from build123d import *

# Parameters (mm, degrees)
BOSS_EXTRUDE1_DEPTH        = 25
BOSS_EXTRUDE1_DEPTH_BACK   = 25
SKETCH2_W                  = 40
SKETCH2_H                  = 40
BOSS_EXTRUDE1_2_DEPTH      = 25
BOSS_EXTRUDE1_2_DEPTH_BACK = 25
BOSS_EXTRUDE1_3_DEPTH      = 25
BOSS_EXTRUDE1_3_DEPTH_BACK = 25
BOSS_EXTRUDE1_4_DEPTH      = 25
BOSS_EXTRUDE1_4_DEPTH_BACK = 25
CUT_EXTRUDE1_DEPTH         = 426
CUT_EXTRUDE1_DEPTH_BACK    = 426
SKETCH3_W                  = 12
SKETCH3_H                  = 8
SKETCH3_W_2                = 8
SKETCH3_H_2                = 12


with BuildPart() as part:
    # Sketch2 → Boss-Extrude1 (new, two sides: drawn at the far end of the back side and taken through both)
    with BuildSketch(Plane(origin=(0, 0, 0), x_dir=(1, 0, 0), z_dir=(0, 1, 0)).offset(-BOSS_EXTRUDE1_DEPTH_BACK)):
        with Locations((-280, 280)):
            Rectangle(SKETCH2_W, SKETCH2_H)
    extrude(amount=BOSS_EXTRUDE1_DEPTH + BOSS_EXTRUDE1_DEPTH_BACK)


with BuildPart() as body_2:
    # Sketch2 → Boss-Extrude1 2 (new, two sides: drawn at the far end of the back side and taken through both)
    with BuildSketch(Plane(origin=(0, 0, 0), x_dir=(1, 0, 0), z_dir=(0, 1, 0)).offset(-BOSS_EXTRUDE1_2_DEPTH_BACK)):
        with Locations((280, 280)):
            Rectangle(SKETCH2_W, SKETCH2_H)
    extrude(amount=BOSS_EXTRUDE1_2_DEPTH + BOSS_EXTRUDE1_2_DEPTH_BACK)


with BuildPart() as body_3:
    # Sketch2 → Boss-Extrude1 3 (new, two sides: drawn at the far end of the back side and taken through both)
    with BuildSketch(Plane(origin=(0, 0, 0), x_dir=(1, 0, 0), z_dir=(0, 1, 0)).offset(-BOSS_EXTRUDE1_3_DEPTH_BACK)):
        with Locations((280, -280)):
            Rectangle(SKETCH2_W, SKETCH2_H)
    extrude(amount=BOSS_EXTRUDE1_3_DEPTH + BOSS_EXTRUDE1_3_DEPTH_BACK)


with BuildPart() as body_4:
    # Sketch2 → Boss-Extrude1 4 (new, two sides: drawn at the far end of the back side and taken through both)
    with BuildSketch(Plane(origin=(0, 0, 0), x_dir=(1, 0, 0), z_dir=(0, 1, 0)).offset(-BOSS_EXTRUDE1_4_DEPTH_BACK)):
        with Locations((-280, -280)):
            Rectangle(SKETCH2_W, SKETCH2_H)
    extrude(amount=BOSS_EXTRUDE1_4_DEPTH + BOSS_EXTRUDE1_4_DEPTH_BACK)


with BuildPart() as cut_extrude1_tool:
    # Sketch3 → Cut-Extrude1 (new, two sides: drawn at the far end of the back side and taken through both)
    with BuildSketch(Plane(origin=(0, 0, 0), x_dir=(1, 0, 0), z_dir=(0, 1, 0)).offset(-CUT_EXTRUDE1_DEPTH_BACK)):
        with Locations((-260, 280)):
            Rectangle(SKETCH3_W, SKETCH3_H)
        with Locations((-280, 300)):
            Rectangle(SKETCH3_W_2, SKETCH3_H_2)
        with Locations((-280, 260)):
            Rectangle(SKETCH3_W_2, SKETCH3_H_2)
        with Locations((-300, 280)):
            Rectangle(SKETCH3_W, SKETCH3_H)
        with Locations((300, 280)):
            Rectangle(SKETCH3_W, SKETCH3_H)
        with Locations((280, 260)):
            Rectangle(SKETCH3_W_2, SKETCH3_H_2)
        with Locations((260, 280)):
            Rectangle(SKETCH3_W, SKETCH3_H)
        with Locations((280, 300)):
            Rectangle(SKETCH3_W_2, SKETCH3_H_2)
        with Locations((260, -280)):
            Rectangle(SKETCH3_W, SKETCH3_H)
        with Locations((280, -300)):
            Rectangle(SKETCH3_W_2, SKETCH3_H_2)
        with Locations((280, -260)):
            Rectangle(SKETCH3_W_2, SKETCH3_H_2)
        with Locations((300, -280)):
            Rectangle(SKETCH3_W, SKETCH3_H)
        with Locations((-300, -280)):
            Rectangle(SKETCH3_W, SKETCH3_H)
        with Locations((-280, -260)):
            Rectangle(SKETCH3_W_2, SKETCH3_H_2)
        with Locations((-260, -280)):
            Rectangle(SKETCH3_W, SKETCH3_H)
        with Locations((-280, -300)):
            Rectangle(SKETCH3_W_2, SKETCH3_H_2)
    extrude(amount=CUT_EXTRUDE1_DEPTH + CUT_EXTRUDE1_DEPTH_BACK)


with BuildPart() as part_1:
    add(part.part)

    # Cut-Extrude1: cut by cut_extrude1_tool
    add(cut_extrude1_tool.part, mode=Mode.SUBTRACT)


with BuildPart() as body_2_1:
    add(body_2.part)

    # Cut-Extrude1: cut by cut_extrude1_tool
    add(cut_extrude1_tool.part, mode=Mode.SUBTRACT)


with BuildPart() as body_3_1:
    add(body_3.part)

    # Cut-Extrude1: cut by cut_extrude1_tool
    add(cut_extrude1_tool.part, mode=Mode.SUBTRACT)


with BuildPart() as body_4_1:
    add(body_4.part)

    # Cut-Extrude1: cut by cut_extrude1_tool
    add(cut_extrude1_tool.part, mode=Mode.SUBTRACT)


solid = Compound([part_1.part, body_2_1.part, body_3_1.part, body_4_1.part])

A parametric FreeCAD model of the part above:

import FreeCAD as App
import Part
import Sketcher

V = App.Vector

doc = App.newDocument("Part")
body = doc.addObject("PartDesign::Body", "Body")

sketch1 = body.newObject("Sketcher::SketchObject", "Sketch")
sketch1.AttachmentSupport = (doc.getObject("XZ_Plane"), [""])
sketch1.MapMode = "FlatFace"
sketch1.addGeometry([
    Part.LineSegment(V(-300, -300, 0), V(-300, -260, 0)),
    Part.LineSegment(V(-300, -260, 0), V(-260, -260, 0)),
    Part.LineSegment(V(-260, -260, 0), V(-260, -300, 0)),
    Part.LineSegment(V(-260, -300, 0), V(-300, -300, 0)),
], False)
sketch1.addConstraint([
    Sketcher.Constraint("Coincident", 0, 2, 1, 1),
    Sketcher.Constraint("Coincident", 1, 2, 2, 1),
    Sketcher.Constraint("Coincident", 2, 2, 3, 1),
    Sketcher.Constraint("Coincident", 3, 2, 0, 1),
    Sketcher.Constraint("Vertical", 0),
    Sketcher.Constraint("Horizontal", 1),
    Sketcher.Constraint("Vertical", 2),
    Sketcher.Constraint("Horizontal", 3),
    Sketcher.Constraint("Equal", 3, 0),
    Sketcher.Constraint("DistanceX", 1, 1, 1, 2, 40.0),
    Sketcher.Constraint("DistanceX", 0, 2, -1, 1, 300.0),
    Sketcher.Constraint("DistanceY", 0, 2, -1, 1, 260.0),
])
pad1 = body.newObject("PartDesign::Pad", "Pad")
pad1.Profile = sketch1
pad1.Type = "TwoLengths"
pad1.Length = 25
pad1.Length2 = 25
pad1.Reversed = True
body2 = doc.addObject("PartDesign::Body", "Body001")

sketch2 = body2.newObject("Sketcher::SketchObject", "Sketch001")
sketch2.AttachmentSupport = (doc.getObject("XZ_Plane001"), [""])
sketch2.MapMode = "FlatFace"
sketch2.addGeometry([
    Part.LineSegment(V(260, -300, 0), V(260, -260, 0)),
    Part.LineSegment(V(260, -260, 0), V(300, -260, 0)),
    Part.LineSegment(V(300, -260, 0), V(300, -300, 0)),
    Part.LineSegment(V(300, -300, 0), V(260, -300, 0)),
], False)
sketch2.addConstraint([
    Sketcher.Constraint("Coincident", 0, 2, 1, 1),
    Sketcher.Constraint("Coincident", 1, 2, 2, 1),
    Sketcher.Constraint("Coincident", 2, 2, 3, 1),
    Sketcher.Constraint("Coincident", 3, 2, 0, 1),
    Sketcher.Constraint("Vertical", 0),
    Sketcher.Constraint("Horizontal", 1),
    Sketcher.Constraint("Vertical", 2),
    Sketcher.Constraint("Horizontal", 3),
    Sketcher.Constraint("Equal", 3, 0),
    Sketcher.Constraint("DistanceX", 1, 1, 1, 2, 40.0),
    Sketcher.Constraint("DistanceX", -1, 1, 0, 2, 260.0),
    Sketcher.Constraint("DistanceY", 0, 2, -1, 1, 260.0),
])
pad2 = body2.newObject("PartDesign::Pad", "Pad001")
pad2.Profile = sketch2
pad2.Type = "TwoLengths"
pad2.Length = 25
pad2.Length2 = 25
pad2.Reversed = True
body3 = doc.addObject("PartDesign::Body", "Body002")

sketch3 = body3.newObject("Sketcher::SketchObject", "Sketch002")
sketch3.AttachmentSupport = (doc.getObject("XZ_Plane002"), [""])
sketch3.MapMode = "FlatFace"
sketch3.addGeometry([
    Part.LineSegment(V(260, 260, 0), V(260, 300, 0)),
    Part.LineSegment(V(260, 300, 0), V(300, 300, 0)),
    Part.LineSegment(V(300, 300, 0), V(300, 260, 0)),
    Part.LineSegment(V(300, 260, 0), V(260, 260, 0)),
], False)
sketch3.addConstraint([
    Sketcher.Constraint("Coincident", 0, 2, 1, 1),
    Sketcher.Constraint("Coincident", 1, 2, 2, 1),
    Sketcher.Constraint("Coincident", 2, 2, 3, 1),
    Sketcher.Constraint("Coincident", 3, 2, 0, 1),
    Sketcher.Constraint("Vertical", 0),
    Sketcher.Constraint("Horizontal", 1),
    Sketcher.Constraint("Vertical", 2),
    Sketcher.Constraint("Horizontal", 3),
    Sketcher.Constraint("Equal", 3, 0),
    Sketcher.Constraint("DistanceX", 1, 1, 1, 2, 40.0),
    Sketcher.Constraint("DistanceX", -1, 1, 0, 2, 260.0),
    Sketcher.Constraint("DistanceY", -1, 1, 0, 2, 300.0),
])
pad3 = body3.newObject("PartDesign::Pad", "Pad002")
pad3.Profile = sketch3
pad3.Type = "TwoLengths"
pad3.Length = 25
pad3.Length2 = 25
pad3.Reversed = True
body4 = doc.addObject("PartDesign::Body", "Body003")

sketch4 = body4.newObject("Sketcher::SketchObject", "Sketch003")
sketch4.AttachmentSupport = (doc.getObject("XZ_Plane003"), [""])
sketch4.MapMode = "FlatFace"
sketch4.addGeometry([
    Part.LineSegment(V(-300, 260, 0), V(-300, 300, 0)),
    Part.LineSegment(V(-300, 300, 0), V(-260, 300, 0)),
    Part.LineSegment(V(-260, 300, 0), V(-260, 260, 0)),
    Part.LineSegment(V(-260, 260, 0), V(-300, 260, 0)),
], False)
sketch4.addConstraint([
    Sketcher.Constraint("Coincident", 0, 2, 1, 1),
    Sketcher.Constraint("Coincident", 1, 2, 2, 1),
    Sketcher.Constraint("Coincident", 2, 2, 3, 1),
    Sketcher.Constraint("Coincident", 3, 2, 0, 1),
    Sketcher.Constraint("Vertical", 0),
    Sketcher.Constraint("Horizontal", 1),
    Sketcher.Constraint("Vertical", 2),
    Sketcher.Constraint("Horizontal", 3),
    Sketcher.Constraint("Equal", 3, 0),
    Sketcher.Constraint("DistanceX", 1, 1, 1, 2, 40.0),
    Sketcher.Constraint("DistanceX", 0, 2, -1, 1, 300.0),
    Sketcher.Constraint("DistanceY", -1, 1, 0, 2, 300.0),
])
pad4 = body4.newObject("PartDesign::Pad", "Pad003")
pad4.Profile = sketch4
pad4.Type = "TwoLengths"
pad4.Length = 25
pad4.Length2 = 25
pad4.Reversed = True
body5 = doc.addObject("PartDesign::Body", "Body004")
body5.AllowCompound = True

sketch5 = body5.newObject("Sketcher::SketchObject", "Sketch004")
sketch5.AttachmentSupport = (doc.getObject("XZ_Plane004"), [""])
sketch5.MapMode = "FlatFace"
sketch5.addGeometry([
    Part.LineSegment(V(-266, -284, 0), V(-266, -276, 0)),
    Part.LineSegment(V(-266, -276, 0), V(-254, -276, 0)),
    Part.LineSegment(V(-254, -276, 0), V(-254, -284, 0)),
    Part.LineSegment(V(-254, -284, 0), V(-266, -284, 0)),
    Part.LineSegment(V(-284, -306, 0), V(-284, -294, 0)),
    Part.LineSegment(V(-284, -294, 0), V(-276, -294, 0)),
    Part.LineSegment(V(-276, -294, 0), V(-276, -306, 0)),
    Part.LineSegment(V(-276, -306, 0), V(-284, -306, 0)),
    Part.LineSegment(V(-284, -266, 0), V(-284, -254, 0)),
    Part.LineSegment(V(-284, -254, 0), V(-276, -254, 0)),
    Part.LineSegment(V(-276, -254, 0), V(-276, -266, 0)),
    Part.LineSegment(V(-276, -266, 0), V(-284, -266, 0)),
    Part.LineSegment(V(-306, -284, 0), V(-306, -276, 0)),
    Part.LineSegment(V(-306, -276, 0), V(-294, -276, 0)),
    Part.LineSegment(V(-294, -276, 0), V(-294, -284, 0)),
    Part.LineSegment(V(-294, -284, 0), V(-306, -284, 0)),
    Part.LineSegment(V(294, -284, 0), V(294, -276, 0)),
    Part.LineSegment(V(294, -276, 0), V(306, -276, 0)),
    Part.LineSegment(V(306, -276, 0), V(306, -284, 0)),
    Part.LineSegment(V(306, -284, 0), V(294, -284, 0)),
    Part.LineSegment(V(276, -266, 0), V(276, -254, 0)),
    Part.LineSegment(V(276, -254, 0), V(284, -254, 0)),
    Part.LineSegment(V(284, -254, 0), V(284, -266, 0)),
    Part.LineSegment(V(284, -266, 0), V(276, -266, 0)),
    Part.LineSegment(V(254, -284, 0), V(254, -276, 0)),
    Part.LineSegment(V(254, -276, 0), V(266, -276, 0)),
    Part.LineSegment(V(266, -276, 0), V(266, -284, 0)),
    Part.LineSegment(V(266, -284, 0), V(254, -284, 0)),
    Part.LineSegment(V(276, -306, 0), V(276, -294, 0)),
    Part.LineSegment(V(276, -294, 0), V(284, -294, 0)),
    Part.LineSegment(V(284, -294, 0), V(284, -306, 0)),
    Part.LineSegment(V(284, -306, 0), V(276, -306, 0)),
    Part.LineSegment(V(254, 276, 0), V(254, 284, 0)),
    Part.LineSegment(V(254, 284, 0), V(266, 284, 0)),
    Part.LineSegment(V(266, 284, 0), V(266, 276, 0)),
    Part.LineSegment(V(266, 276, 0), V(254, 276, 0)),
    Part.LineSegment(V(276, 294, 0), V(276, 306, 0)),
    Part.LineSegment(V(276, 306, 0), V(284, 306, 0)),
    Part.LineSegment(V(284, 306, 0), V(284, 294, 0)),
    Part.LineSegment(V(284, 294, 0), V(276, 294, 0)),
    Part.LineSegment(V(276, 254, 0), V(276, 266, 0)),
    Part.LineSegment(V(276, 266, 0), V(284, 266, 0)),
    Part.LineSegment(V(284, 266, 0), V(284, 254, 0)),
    Part.LineSegment(V(284, 254, 0), V(276, 254, 0)),
    Part.LineSegment(V(294, 276, 0), V(294, 284, 0)),
    Part.LineSegment(V(294, 284, 0), V(306, 284, 0)),
    Part.LineSegment(V(306, 284, 0), V(306, 276, 0)),
    Part.LineSegment(V(306, 276, 0), V(294, 276, 0)),
    Part.LineSegment(V(-306, 276, 0), V(-306, 284, 0)),
    Part.LineSegment(V(-306, 284, 0), V(-294, 284, 0)),
    Part.LineSegment(V(-294, 284, 0), V(-294, 276, 0)),
    Part.LineSegment(V(-294, 276, 0), V(-306, 276, 0)),
    Part.LineSegment(V(-284, 254, 0), V(-284, 266, 0)),
    Part.LineSegment(V(-284, 266, 0), V(-276, 266, 0)),
    Part.LineSegment(V(-276, 266, 0), V(-276, 254, 0)),
    Part.LineSegment(V(-276, 254, 0), V(-284, 254, 0)),
    Part.LineSegment(V(-266, 276, 0), V(-266, 284, 0)),
    Part.LineSegment(V(-266, 284, 0), V(-254, 284, 0)),
    Part.LineSegment(V(-254, 284, 0), V(-254, 276, 0)),
    Part.LineSegment(V(-254, 276, 0), V(-266, 276, 0)),
    Part.LineSegment(V(-284, 294, 0), V(-284, 306, 0)),
    Part.LineSegment(V(-284, 306, 0), V(-276, 306, 0)),
    Part.LineSegment(V(-276, 306, 0), V(-276, 294, 0)),
    Part.LineSegment(V(-276, 294, 0), V(-284, 294, 0)),
], False)
sketch5.addConstraint([
    Sketcher.Constraint("Coincident", 0, 2, 1, 1),
    Sketcher.Constraint("Coincident", 1, 2, 2, 1),
    Sketcher.Constraint("Coincident", 2, 2, 3, 1),
    Sketcher.Constraint("Coincident", 3, 2, 0, 1),
    Sketcher.Constraint("Coincident", 4, 2, 5, 1),
    Sketcher.Constraint("Coincident", 5, 2, 6, 1),
    Sketcher.Constraint("Coincident", 6, 2, 7, 1),
    Sketcher.Constraint("Coincident", 7, 2, 4, 1),
    Sketcher.Constraint("Coincident", 8, 2, 9, 1),
    Sketcher.Constraint("Coincident", 9, 2, 10, 1),
    Sketcher.Constraint("Coincident", 10, 2, 11, 1),
    Sketcher.Constraint("Coincident", 11, 2, 8, 1),
    Sketcher.Constraint("Coincident", 12, 2, 13, 1),
    Sketcher.Constraint("Coincident", 13, 2, 14, 1),
    Sketcher.Constraint("Coincident", 14, 2, 15, 1),
    Sketcher.Constraint("Coincident", 15, 2, 12, 1),
    Sketcher.Constraint("Coincident", 16, 2, 17, 1),
    Sketcher.Constraint("Coincident", 17, 2, 18, 1),
    Sketcher.Constraint("Coincident", 18, 2, 19, 1),
    Sketcher.Constraint("Coincident", 19, 2, 16, 1),
    Sketcher.Constraint("Coincident", 20, 2, 21, 1),
    Sketcher.Constraint("Coincident", 21, 2, 22, 1),
    Sketcher.Constraint("Coincident", 22, 2, 23, 1),
    Sketcher.Constraint("Coincident", 23, 2, 20, 1),
    Sketcher.Constraint("Coincident", 24, 2, 25, 1),
    Sketcher.Constraint("Coincident", 25, 2, 26, 1),
    Sketcher.Constraint("Coincident", 26, 2, 27, 1),
    Sketcher.Constraint("Coincident", 27, 2, 24, 1),
    Sketcher.Constraint("Coincident", 28, 2, 29, 1),
    Sketcher.Constraint("Coincident", 29, 2, 30, 1),
    Sketcher.Constraint("Coincident", 30, 2, 31, 1),
    Sketcher.Constraint("Coincident", 31, 2, 28, 1),
    Sketcher.Constraint("Coincident", 32, 2, 33, 1),
    Sketcher.Constraint("Coincident", 33, 2, 34, 1),
    Sketcher.Constraint("Coincident", 34, 2, 35, 1),
    Sketcher.Constraint("Coincident", 35, 2, 32, 1),
    Sketcher.Constraint("Coincident", 36, 2, 37, 1),
    Sketcher.Constraint("Coincident", 37, 2, 38, 1),
    Sketcher.Constraint("Coincident", 38, 2, 39, 1),
    Sketcher.Constraint("Coincident", 39, 2, 36, 1),
    Sketcher.Constraint("Coincident", 40, 2, 41, 1),
    Sketcher.Constraint("Coincident", 41, 2, 42, 1),
    Sketcher.Constraint("Coincident", 42, 2, 43, 1),
    Sketcher.Constraint("Coincident", 43, 2, 40, 1),
    Sketcher.Constraint("Coincident", 44, 2, 45, 1),
    Sketcher.Constraint("Coincident", 45, 2, 46, 1),
    Sketcher.Constraint("Coincident", 46, 2, 47, 1),
    Sketcher.Constraint("Coincident", 47, 2, 44, 1),
    Sketcher.Constraint("Coincident", 48, 2, 49, 1),
    Sketcher.Constraint("Coincident", 49, 2, 50, 1),
    Sketcher.Constraint("Coincident", 50, 2, 51, 1),
    Sketcher.Constraint("Coincident", 51, 2, 48, 1),
    Sketcher.Constraint("Coincident", 52, 2, 53, 1),
    Sketcher.Constraint("Coincident", 53, 2, 54, 1),
    Sketcher.Constraint("Coincident", 54, 2, 55, 1),
    Sketcher.Constraint("Coincident", 55, 2, 52, 1),
    Sketcher.Constraint("Coincident", 56, 2, 57, 1),
    Sketcher.Constraint("Coincident", 57, 2, 58, 1),
    Sketcher.Constraint("Coincident", 58, 2, 59, 1),
    Sketcher.Constraint("Coincident", 59, 2, 56, 1),
    Sketcher.Constraint("Coincident", 60, 2, 61, 1),
    Sketcher.Constraint("Coincident", 61, 2, 62, 1),
    Sketcher.Constraint("Coincident", 62, 2, 63, 1),
    Sketcher.Constraint("Coincident", 63, 2, 60, 1),
    Sketcher.Constraint("Vertical", 0),
    Sketcher.Constraint("Horizontal", 1),
    Sketcher.Constraint("Vertical", 2),
    Sketcher.Constraint("Horizontal", 3),
    Sketcher.Constraint("Vertical", 4),
    Sketcher.Constraint("Horizontal", 5),
    Sketcher.Constraint("Vertical", 6),
    Sketcher.Constraint("Horizontal", 7),
    Sketcher.Constraint("Vertical", 8),
    Sketcher.Constraint("Horizontal", 9),
    Sketcher.Constraint("Vertical", 10),
    Sketcher.Constraint("Horizontal", 11),
    Sketcher.Constraint("Vertical", 12),
    Sketcher.Constraint("Horizontal", 13),
    Sketcher.Constraint("Vertical", 14),
    Sketcher.Constraint("Horizontal", 15),
    Sketcher.Constraint("Vertical", 16),
    Sketcher.Constraint("Horizontal", 17),
    Sketcher.Constraint("Vertical", 18),
    Sketcher.Constraint("Horizontal", 19),
    Sketcher.Constraint("Vertical", 20),
    Sketcher.Constraint("Horizontal", 21),
    Sketcher.Constraint("Vertical", 22),
    Sketcher.Constraint("Horizontal", 23),
    Sketcher.Constraint("Vertical", 24),
    Sketcher.Constraint("Horizontal", 25),
    Sketcher.Constraint("Vertical", 26),
    Sketcher.Constraint("Horizontal", 27),
    Sketcher.Constraint("Vertical", 28),
    Sketcher.Constraint("Horizontal", 29),
    Sketcher.Constraint("Vertical", 30),
    Sketcher.Constraint("Horizontal", 31),
    Sketcher.Constraint("Vertical", 32),
    Sketcher.Constraint("Horizontal", 33),
    Sketcher.Constraint("Vertical", 34),
    Sketcher.Constraint("Horizontal", 35),
    Sketcher.Constraint("Vertical", 36),
    Sketcher.Constraint("Horizontal", 37),
    Sketcher.Constraint("Vertical", 38),
    Sketcher.Constraint("Horizontal", 39),
    Sketcher.Constraint("Vertical", 40),
    Sketcher.Constraint("Horizontal", 41),
    Sketcher.Constraint("Vertical", 42),
    Sketcher.Constraint("Horizontal", 43),
    Sketcher.Constraint("Vertical", 44),
    Sketcher.Constraint("Horizontal", 45),
    Sketcher.Constraint("Vertical", 46),
    Sketcher.Constraint("Horizontal", 47),
    Sketcher.Constraint("Vertical", 48),
    Sketcher.Constraint("Horizontal", 49),
    Sketcher.Constraint("Vertical", 50),
    Sketcher.Constraint("Horizontal", 51),
    Sketcher.Constraint("Vertical", 52),
    Sketcher.Constraint("Horizontal", 53),
    Sketcher.Constraint("Vertical", 54),
    Sketcher.Constraint("Horizontal", 55),
    Sketcher.Constraint("Vertical", 56),
    Sketcher.Constraint("Horizontal", 57),
    Sketcher.Constraint("Vertical", 58),
    Sketcher.Constraint("Horizontal", 59),
    Sketcher.Constraint("Vertical", 60),
    Sketcher.Constraint("Horizontal", 61),
    Sketcher.Constraint("Vertical", 62),
    Sketcher.Constraint("Horizontal", 63),
    Sketcher.Constraint("Symmetric", 2, 2, 32, 2, -1, 1),
    Sketcher.Constraint("Symmetric", 0, 2, 34, 2, -1, 1),
    Sketcher.Constraint("Symmetric", 6, 2, 36, 2, -1, 1),
    Sketcher.Constraint("Symmetric", 4, 2, 38, 2, -1, 1),
    Sketcher.Constraint("Symmetric", 10, 2, 40, 2, -1, 1),
    Sketcher.Constraint("Symmetric", 8, 2, 42, 2, -1, 1),
    Sketcher.Constraint("Symmetric", 14, 2, 44, 2, -1, 1),
    Sketcher.Constraint("Symmetric", 12, 2, 46, 2, -1, 1),
    Sketcher.Constraint("Symmetric", 18, 2, 48, 2, -1, 1),
    Sketcher.Constraint("Symmetric", 16, 2, 50, 2, -1, 1),
    Sketcher.Constraint("Symmetric", 22, 2, 52, 2, -1, 1),
    Sketcher.Constraint("Symmetric", 20, 2, 54, 2, -1, 1),
    Sketcher.Constraint("Symmetric", 26, 2, 56, 2, -1, 1),
    Sketcher.Constraint("Symmetric", 24, 2, 58, 2, -1, 1),
    Sketcher.Constraint("Symmetric", 30, 2, 60, 2, -1, 1),
    Sketcher.Constraint("Symmetric", 28, 2, 62, 2, -1, 1),
    Sketcher.Constraint("Symmetric", 13, 2, 16, 2, -2),
    Sketcher.Constraint("Symmetric", 15, 2, 18, 2, -2),
    Sketcher.Constraint("Symmetric", 9, 2, 20, 2, -2),
    Sketcher.Constraint("Symmetric", 11, 2, 22, 2, -2),
    Sketcher.Constraint("Symmetric", 1, 2, 24, 2, -2),
    Sketcher.Constraint("Symmetric", 3, 2, 26, 2, -2),
    Sketcher.Constraint("Symmetric", 5, 2, 28, 2, -2),
    Sketcher.Constraint("Symmetric", 7, 2, 30, 2, -2),
    Sketcher.Constraint("Horizontal", 1, 2, 12, 2),
    Sketcher.Constraint("Horizontal", 3, 2, 14, 2),
    Sketcher.Constraint("Vertical", 7, 2, 8, 2),
    Sketcher.Constraint("Vertical", 6, 2, 9, 2),
    Sketcher.Constraint("Equal", 3, 13),
    Sketcher.Constraint("Equal", 63, 0),
    Sketcher.Constraint("Equal", 59, 4),
    Sketcher.Constraint("Equal", 6, 8),
    Sketcher.Constraint("DistanceX", 1, 1, 1, 2, 12.0),
    Sketcher.Constraint("DistanceX", 5, 1, 5, 2, 8.0),
    Sketcher.Constraint("DistanceX", 0, 2, -1, 1, 266.0),
    Sketcher.Constraint("DistanceY", 0, 2, -1, 1, 276.0),
    Sketcher.Constraint("DistanceX", 4, 2, -1, 1, 284.0),
    Sketcher.Constraint("DistanceY", 4, 2, -1, 1, 294.0),
    Sketcher.Constraint("DistanceY", 8, 2, -1, 1, 254.0),
    Sketcher.Constraint("DistanceX", 12, 2, -1, 1, 306.0),
])
pad5 = body5.newObject("PartDesign::Pad", "Pad004")
pad5.Profile = sketch5
pad5.Type = "TwoLengths"
pad5.Length = 426
pad5.Length2 = 426
pad5.Reversed = True
doc.recompute()

body6 = doc.addObject("PartDesign::Body", "Body005")
body6.BaseFeature = body5
boolean = body.newObject("PartDesign::Boolean", "Boolean")
boolean.Type = "Cut"
boolean.addObjects([body6])
doc.recompute()

body7 = doc.addObject("PartDesign::Body", "Body006")
body7.BaseFeature = body5
boolean2 = body2.newObject("PartDesign::Boolean", "Boolean001")
boolean2.Type = "Cut"
boolean2.addObjects([body7])
doc.recompute()

body8 = doc.addObject("PartDesign::Body", "Body007")
body8.BaseFeature = body5
boolean3 = body3.newObject("PartDesign::Boolean", "Boolean002")
boolean3.Type = "Cut"
boolean3.addObjects([body8])
doc.recompute()

boolean4 = body4.newObject("PartDesign::Boolean", "Boolean003")
boolean4.Type = "Cut"
boolean4.addObjects([body5])

doc.recompute()
